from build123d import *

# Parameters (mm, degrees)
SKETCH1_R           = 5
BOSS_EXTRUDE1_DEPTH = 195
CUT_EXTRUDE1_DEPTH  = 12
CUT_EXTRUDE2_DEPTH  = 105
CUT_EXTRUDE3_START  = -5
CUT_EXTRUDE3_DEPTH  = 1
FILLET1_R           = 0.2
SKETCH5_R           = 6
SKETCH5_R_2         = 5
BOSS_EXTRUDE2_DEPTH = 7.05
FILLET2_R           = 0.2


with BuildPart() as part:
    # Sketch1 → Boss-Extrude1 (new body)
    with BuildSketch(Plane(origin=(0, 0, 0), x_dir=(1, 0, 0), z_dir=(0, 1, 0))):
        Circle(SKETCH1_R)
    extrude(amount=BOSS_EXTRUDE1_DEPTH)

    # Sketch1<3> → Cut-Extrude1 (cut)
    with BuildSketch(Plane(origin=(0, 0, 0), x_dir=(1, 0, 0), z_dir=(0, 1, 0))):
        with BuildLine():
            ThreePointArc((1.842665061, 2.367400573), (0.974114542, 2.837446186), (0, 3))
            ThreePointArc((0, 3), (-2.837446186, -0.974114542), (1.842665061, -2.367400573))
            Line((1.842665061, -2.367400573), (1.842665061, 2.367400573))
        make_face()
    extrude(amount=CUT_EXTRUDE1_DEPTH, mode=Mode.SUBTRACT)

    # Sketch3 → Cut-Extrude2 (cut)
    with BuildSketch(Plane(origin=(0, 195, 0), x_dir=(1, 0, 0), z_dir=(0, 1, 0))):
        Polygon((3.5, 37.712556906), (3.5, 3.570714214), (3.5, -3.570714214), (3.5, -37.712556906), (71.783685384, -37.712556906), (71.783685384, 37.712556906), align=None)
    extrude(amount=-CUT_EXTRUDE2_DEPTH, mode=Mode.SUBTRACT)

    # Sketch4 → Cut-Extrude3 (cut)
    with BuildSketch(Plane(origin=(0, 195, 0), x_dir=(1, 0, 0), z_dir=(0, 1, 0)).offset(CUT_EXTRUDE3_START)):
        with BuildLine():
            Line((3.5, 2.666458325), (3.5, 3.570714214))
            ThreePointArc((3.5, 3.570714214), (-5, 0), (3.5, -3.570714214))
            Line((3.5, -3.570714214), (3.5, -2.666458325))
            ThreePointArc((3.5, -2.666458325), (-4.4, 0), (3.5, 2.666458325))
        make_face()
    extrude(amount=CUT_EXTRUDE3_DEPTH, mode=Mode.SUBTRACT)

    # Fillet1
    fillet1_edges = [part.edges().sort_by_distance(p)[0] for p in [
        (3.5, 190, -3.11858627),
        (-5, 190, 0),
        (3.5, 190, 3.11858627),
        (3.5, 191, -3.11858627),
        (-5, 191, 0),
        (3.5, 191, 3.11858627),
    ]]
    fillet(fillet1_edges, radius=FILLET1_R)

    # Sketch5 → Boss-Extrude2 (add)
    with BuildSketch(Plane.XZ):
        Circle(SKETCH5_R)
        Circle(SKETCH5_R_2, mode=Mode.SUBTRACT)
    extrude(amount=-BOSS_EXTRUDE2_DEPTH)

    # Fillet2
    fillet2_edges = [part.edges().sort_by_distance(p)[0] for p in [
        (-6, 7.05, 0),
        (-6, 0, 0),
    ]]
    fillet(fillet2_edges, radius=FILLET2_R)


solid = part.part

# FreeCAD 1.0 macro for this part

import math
import FreeCAD as App
import Part
import Sketcher
from FreeCAD import Vector


def edges_at(feature, points):
    """Names of the edges that pass closest to the given points."""
    edges = feature.Shape.Edges
    near = lambda p: min(range(len(edges)), key=lambda i: edges[i].distToShape(Part.Vertex(*p))[0])
    return sorted({f"Edge{near(p) + 1}" for p in points})


def add_polygon(sketch, points):
    """Adds a closed chain of lines whose ends are joined by coincident constraints."""
    first, n = sketch.GeometryCount, len(points)
    for a, b in zip(points, points[1:] + points[:1]):
        sketch.addGeometry(Part.LineSegment(App.Vector(*a, 0), App.Vector(*b, 0)), False)
    for i in range(n):
        sketch.addConstraint(Sketcher.Constraint("Coincident", first + i, 2, first + (i + 1) % n, 1))

doc = App.newDocument("Part")
body = doc.addObject("PartDesign::Body", "Body")

sketch1 = doc.addObject("Sketcher::SketchObject", "Sketch")
body.addObject(sketch1)
sketch1.AttachmentSupport = (doc.XZ_Plane, [""])
sketch1.MapMode = "FlatFace"
sketch1.addGeometry(Part.Circle(Vector(0, 0, 0), Vector(0, 0, 1), 5), False)
sketch1.addConstraint([
    Sketcher.Constraint("Coincident", 0, 3, -1, 1),
    Sketcher.Constraint("Diameter", 0, 10.0),
])
pad1 = doc.addObject("PartDesign::Pad", "Pad")
body.addObject(pad1)
pad1.Profile = sketch1
pad1.Length = 195
pad1.Reversed = True

sketch2 = doc.addObject("Sketcher::SketchObject", "Sketch001")
body.addObject(sketch2)
sketch2.AttachmentSupport = (doc.XZ_Plane, [""])
sketch2.MapMode = "FlatFace"
sketch2.addGeometry([
    Part.ArcOfCircle(Part.Circle(Vector(0, 0, 0), Vector(0, 0, 1), 3), math.radians(-90), math.radians(-52)),
    Part.ArcOfCircle(Part.Circle(Vector(0, 0, 0), Vector(0, 0, 1), 3), math.radians(52), math.radians(270)),
    Part.LineSegment(Vector(1.8, 2.4, 0), Vector(1.8, -2.4, 0)),
], False)
sketch2.addConstraint([
    Sketcher.Constraint("Tangent", 0, 1, 1, 2),
    Sketcher.Constraint("Coincident", 1, 1, 2, 1),
    Sketcher.Constraint("Coincident", 2, 2, 0, 2),
    Sketcher.Constraint("Vertical", 2),
    Sketcher.Constraint("Coincident", 0, 3, -1, 1),
    Sketcher.Constraint("Equal", 0, 1),
    Sketcher.Constraint("PointOnObject", 0, 1, -2),
    Sketcher.Constraint("Radius", 0, 3.0),
    Sketcher.Constraint("DistanceY", 2, 2, 2, 1, 4.734801),
])
pocket1 = doc.addObject("PartDesign::Pocket", "Pocket")
body.addObject(pocket1)
pocket1.Profile = sketch2
pocket1.Length = 12

sketch3 = doc.addObject("Sketcher::SketchObject", "Sketch002")
body.addObject(sketch3)
sketch3.AttachmentSupport = (doc.XZ_Plane, [""])
sketch3.MapMode = "FlatFace"
sketch3.AttachmentOffset = App.Placement(Vector(0, 0, -195), App.Rotation())
add_polygon(sketch3, [(4, -38), (4, 38), (72, 38), (72, -38)])
sketch3.addConstraint([
    Sketcher.Constraint("Vertical", 0),
    Sketcher.Constraint("Horizontal", 1),
    Sketcher.Constraint("Vertical", 2),
    Sketcher.Constraint("Horizontal", 3),
    Sketcher.Constraint("DistanceX", -1, 1, 0, 2, 3.5),
    Sketcher.Constraint("DistanceX", 1, 1, 1, 2, 68.283685),
    Sketcher.Constraint("DistanceY", 0, 1, 0, 2, 75.425114),
    Sketcher.Constraint("DistanceY", -1, 1, 0, 2, 37.712557),
])
pocket2 = doc.addObject("PartDesign::Pocket", "Pocket001")
body.addObject(pocket2)
pocket2.Profile = sketch3
pocket2.Length = 105
pocket2.Reversed = True

sketch4 = doc.addObject("Sketcher::SketchObject", "Sketch003")
body.addObject(sketch4)
sketch4.AttachmentSupport = (doc.XZ_Plane, [""])
sketch4.MapMode = "FlatFace"
sketch4.AttachmentOffset = App.Placement(Vector(0, 0, -190), App.Rotation())
sketch4.addGeometry([
    Part.LineSegment(Vector(3.5, -2.7, 0), Vector(3.5, -3.6, 0)),
    Part.ArcOfCircle(Part.Circle(Vector(0, 0, 0), Vector(0, 0, 1), 5), math.radians(46), math.radians(314)),
    Part.LineSegment(Vector(3.5, 3.6, 0), Vector(3.5, 2.7, 0)),
    Part.ArcOfCircle(Part.Circle(Vector(0, 0, 0), Vector(0, 0, 1), 4.4), math.radians(37), math.radians(323)),
], False)
sketch4.addConstraint([
    Sketcher.Constraint("Coincident", 0, 2, 1, 2),
    Sketcher.Constraint("Coincident", 1, 1, 2, 1),
    Sketcher.Constraint("Coincident", 2, 2, 3, 1),
    Sketcher.Constraint("Coincident", 3, 2, 0, 1),
    Sketcher.Constraint("Vertical", 0),
    Sketcher.Constraint("Vertical", 2),
    Sketcher.Constraint("Coincident", 1, 3, -1, 1),
    Sketcher.Constraint("Coincident", 3, 3, -1, 1),
    Sketcher.Constraint("Vertical", 0, 2, 1, 1),
    Sketcher.Constraint("Radius", 1, 5.0),
    Sketcher.Constraint("Radius", 3, 4.4),
    Sketcher.Constraint("DistanceX", -1, 1, 0, 2, 3.5),
])
pocket3 = doc.addObject("PartDesign::Pocket", "Pocket002")
body.addObject(pocket3)
pocket3.Profile = sketch4
pocket3.Length = 1
doc.recompute()

fillet = doc.addObject("PartDesign::Fillet", "Fillet")
body.addObject(fillet)
fillet.Base = (pocket3, edges_at(pocket3, [
    (3.5, 190, -3.119),
    (-5, 190, 0),
    (3.5, 190, 3.119),
    (3.5, 191, -3.119),
    (-5, 191, 0),
    (3.5, 191, 3.119),
]))
fillet.Radius = 0.2

sketch5 = doc.addObject("Sketcher::SketchObject", "Sketch004")
body.addObject(sketch5)
sketch5.AttachmentSupport = (doc.XZ_Plane, [""])
sketch5.MapMode = "FlatFace"
sketch5.addGeometry([
    Part.Circle(Vector(0, 0, 0), Vector(0, 0, 1), 6),
    Part.Circle(Vector(0, 0, 0), Vector(0, 0, 1), 5),
], False)
sketch5.addConstraint([
    Sketcher.Constraint("Coincident", 0, 3, -1, 1),
    Sketcher.Constraint("Coincident", 1, 3, -1, 1),
    Sketcher.Constraint("Diameter", 0, 12.0),
    Sketcher.Constraint("Diameter", 1, 10.0),
])
pad2 = doc.addObject("PartDesign::Pad", "Pad001")
body.addObject(pad2)
pad2.Profile = sketch5
pad2.Length = 7.05
pad2.Reversed = True
doc.recompute()

fillet2 = doc.addObject("PartDesign::Fillet", "Fillet001")
body.addObject(fillet2)
fillet2.Base = (pad2, edges_at(pad2, [(-6, 7.05, 0), (-6, 0, 0)]))
fillet2.Radius = 0.2

doc.recompute()
